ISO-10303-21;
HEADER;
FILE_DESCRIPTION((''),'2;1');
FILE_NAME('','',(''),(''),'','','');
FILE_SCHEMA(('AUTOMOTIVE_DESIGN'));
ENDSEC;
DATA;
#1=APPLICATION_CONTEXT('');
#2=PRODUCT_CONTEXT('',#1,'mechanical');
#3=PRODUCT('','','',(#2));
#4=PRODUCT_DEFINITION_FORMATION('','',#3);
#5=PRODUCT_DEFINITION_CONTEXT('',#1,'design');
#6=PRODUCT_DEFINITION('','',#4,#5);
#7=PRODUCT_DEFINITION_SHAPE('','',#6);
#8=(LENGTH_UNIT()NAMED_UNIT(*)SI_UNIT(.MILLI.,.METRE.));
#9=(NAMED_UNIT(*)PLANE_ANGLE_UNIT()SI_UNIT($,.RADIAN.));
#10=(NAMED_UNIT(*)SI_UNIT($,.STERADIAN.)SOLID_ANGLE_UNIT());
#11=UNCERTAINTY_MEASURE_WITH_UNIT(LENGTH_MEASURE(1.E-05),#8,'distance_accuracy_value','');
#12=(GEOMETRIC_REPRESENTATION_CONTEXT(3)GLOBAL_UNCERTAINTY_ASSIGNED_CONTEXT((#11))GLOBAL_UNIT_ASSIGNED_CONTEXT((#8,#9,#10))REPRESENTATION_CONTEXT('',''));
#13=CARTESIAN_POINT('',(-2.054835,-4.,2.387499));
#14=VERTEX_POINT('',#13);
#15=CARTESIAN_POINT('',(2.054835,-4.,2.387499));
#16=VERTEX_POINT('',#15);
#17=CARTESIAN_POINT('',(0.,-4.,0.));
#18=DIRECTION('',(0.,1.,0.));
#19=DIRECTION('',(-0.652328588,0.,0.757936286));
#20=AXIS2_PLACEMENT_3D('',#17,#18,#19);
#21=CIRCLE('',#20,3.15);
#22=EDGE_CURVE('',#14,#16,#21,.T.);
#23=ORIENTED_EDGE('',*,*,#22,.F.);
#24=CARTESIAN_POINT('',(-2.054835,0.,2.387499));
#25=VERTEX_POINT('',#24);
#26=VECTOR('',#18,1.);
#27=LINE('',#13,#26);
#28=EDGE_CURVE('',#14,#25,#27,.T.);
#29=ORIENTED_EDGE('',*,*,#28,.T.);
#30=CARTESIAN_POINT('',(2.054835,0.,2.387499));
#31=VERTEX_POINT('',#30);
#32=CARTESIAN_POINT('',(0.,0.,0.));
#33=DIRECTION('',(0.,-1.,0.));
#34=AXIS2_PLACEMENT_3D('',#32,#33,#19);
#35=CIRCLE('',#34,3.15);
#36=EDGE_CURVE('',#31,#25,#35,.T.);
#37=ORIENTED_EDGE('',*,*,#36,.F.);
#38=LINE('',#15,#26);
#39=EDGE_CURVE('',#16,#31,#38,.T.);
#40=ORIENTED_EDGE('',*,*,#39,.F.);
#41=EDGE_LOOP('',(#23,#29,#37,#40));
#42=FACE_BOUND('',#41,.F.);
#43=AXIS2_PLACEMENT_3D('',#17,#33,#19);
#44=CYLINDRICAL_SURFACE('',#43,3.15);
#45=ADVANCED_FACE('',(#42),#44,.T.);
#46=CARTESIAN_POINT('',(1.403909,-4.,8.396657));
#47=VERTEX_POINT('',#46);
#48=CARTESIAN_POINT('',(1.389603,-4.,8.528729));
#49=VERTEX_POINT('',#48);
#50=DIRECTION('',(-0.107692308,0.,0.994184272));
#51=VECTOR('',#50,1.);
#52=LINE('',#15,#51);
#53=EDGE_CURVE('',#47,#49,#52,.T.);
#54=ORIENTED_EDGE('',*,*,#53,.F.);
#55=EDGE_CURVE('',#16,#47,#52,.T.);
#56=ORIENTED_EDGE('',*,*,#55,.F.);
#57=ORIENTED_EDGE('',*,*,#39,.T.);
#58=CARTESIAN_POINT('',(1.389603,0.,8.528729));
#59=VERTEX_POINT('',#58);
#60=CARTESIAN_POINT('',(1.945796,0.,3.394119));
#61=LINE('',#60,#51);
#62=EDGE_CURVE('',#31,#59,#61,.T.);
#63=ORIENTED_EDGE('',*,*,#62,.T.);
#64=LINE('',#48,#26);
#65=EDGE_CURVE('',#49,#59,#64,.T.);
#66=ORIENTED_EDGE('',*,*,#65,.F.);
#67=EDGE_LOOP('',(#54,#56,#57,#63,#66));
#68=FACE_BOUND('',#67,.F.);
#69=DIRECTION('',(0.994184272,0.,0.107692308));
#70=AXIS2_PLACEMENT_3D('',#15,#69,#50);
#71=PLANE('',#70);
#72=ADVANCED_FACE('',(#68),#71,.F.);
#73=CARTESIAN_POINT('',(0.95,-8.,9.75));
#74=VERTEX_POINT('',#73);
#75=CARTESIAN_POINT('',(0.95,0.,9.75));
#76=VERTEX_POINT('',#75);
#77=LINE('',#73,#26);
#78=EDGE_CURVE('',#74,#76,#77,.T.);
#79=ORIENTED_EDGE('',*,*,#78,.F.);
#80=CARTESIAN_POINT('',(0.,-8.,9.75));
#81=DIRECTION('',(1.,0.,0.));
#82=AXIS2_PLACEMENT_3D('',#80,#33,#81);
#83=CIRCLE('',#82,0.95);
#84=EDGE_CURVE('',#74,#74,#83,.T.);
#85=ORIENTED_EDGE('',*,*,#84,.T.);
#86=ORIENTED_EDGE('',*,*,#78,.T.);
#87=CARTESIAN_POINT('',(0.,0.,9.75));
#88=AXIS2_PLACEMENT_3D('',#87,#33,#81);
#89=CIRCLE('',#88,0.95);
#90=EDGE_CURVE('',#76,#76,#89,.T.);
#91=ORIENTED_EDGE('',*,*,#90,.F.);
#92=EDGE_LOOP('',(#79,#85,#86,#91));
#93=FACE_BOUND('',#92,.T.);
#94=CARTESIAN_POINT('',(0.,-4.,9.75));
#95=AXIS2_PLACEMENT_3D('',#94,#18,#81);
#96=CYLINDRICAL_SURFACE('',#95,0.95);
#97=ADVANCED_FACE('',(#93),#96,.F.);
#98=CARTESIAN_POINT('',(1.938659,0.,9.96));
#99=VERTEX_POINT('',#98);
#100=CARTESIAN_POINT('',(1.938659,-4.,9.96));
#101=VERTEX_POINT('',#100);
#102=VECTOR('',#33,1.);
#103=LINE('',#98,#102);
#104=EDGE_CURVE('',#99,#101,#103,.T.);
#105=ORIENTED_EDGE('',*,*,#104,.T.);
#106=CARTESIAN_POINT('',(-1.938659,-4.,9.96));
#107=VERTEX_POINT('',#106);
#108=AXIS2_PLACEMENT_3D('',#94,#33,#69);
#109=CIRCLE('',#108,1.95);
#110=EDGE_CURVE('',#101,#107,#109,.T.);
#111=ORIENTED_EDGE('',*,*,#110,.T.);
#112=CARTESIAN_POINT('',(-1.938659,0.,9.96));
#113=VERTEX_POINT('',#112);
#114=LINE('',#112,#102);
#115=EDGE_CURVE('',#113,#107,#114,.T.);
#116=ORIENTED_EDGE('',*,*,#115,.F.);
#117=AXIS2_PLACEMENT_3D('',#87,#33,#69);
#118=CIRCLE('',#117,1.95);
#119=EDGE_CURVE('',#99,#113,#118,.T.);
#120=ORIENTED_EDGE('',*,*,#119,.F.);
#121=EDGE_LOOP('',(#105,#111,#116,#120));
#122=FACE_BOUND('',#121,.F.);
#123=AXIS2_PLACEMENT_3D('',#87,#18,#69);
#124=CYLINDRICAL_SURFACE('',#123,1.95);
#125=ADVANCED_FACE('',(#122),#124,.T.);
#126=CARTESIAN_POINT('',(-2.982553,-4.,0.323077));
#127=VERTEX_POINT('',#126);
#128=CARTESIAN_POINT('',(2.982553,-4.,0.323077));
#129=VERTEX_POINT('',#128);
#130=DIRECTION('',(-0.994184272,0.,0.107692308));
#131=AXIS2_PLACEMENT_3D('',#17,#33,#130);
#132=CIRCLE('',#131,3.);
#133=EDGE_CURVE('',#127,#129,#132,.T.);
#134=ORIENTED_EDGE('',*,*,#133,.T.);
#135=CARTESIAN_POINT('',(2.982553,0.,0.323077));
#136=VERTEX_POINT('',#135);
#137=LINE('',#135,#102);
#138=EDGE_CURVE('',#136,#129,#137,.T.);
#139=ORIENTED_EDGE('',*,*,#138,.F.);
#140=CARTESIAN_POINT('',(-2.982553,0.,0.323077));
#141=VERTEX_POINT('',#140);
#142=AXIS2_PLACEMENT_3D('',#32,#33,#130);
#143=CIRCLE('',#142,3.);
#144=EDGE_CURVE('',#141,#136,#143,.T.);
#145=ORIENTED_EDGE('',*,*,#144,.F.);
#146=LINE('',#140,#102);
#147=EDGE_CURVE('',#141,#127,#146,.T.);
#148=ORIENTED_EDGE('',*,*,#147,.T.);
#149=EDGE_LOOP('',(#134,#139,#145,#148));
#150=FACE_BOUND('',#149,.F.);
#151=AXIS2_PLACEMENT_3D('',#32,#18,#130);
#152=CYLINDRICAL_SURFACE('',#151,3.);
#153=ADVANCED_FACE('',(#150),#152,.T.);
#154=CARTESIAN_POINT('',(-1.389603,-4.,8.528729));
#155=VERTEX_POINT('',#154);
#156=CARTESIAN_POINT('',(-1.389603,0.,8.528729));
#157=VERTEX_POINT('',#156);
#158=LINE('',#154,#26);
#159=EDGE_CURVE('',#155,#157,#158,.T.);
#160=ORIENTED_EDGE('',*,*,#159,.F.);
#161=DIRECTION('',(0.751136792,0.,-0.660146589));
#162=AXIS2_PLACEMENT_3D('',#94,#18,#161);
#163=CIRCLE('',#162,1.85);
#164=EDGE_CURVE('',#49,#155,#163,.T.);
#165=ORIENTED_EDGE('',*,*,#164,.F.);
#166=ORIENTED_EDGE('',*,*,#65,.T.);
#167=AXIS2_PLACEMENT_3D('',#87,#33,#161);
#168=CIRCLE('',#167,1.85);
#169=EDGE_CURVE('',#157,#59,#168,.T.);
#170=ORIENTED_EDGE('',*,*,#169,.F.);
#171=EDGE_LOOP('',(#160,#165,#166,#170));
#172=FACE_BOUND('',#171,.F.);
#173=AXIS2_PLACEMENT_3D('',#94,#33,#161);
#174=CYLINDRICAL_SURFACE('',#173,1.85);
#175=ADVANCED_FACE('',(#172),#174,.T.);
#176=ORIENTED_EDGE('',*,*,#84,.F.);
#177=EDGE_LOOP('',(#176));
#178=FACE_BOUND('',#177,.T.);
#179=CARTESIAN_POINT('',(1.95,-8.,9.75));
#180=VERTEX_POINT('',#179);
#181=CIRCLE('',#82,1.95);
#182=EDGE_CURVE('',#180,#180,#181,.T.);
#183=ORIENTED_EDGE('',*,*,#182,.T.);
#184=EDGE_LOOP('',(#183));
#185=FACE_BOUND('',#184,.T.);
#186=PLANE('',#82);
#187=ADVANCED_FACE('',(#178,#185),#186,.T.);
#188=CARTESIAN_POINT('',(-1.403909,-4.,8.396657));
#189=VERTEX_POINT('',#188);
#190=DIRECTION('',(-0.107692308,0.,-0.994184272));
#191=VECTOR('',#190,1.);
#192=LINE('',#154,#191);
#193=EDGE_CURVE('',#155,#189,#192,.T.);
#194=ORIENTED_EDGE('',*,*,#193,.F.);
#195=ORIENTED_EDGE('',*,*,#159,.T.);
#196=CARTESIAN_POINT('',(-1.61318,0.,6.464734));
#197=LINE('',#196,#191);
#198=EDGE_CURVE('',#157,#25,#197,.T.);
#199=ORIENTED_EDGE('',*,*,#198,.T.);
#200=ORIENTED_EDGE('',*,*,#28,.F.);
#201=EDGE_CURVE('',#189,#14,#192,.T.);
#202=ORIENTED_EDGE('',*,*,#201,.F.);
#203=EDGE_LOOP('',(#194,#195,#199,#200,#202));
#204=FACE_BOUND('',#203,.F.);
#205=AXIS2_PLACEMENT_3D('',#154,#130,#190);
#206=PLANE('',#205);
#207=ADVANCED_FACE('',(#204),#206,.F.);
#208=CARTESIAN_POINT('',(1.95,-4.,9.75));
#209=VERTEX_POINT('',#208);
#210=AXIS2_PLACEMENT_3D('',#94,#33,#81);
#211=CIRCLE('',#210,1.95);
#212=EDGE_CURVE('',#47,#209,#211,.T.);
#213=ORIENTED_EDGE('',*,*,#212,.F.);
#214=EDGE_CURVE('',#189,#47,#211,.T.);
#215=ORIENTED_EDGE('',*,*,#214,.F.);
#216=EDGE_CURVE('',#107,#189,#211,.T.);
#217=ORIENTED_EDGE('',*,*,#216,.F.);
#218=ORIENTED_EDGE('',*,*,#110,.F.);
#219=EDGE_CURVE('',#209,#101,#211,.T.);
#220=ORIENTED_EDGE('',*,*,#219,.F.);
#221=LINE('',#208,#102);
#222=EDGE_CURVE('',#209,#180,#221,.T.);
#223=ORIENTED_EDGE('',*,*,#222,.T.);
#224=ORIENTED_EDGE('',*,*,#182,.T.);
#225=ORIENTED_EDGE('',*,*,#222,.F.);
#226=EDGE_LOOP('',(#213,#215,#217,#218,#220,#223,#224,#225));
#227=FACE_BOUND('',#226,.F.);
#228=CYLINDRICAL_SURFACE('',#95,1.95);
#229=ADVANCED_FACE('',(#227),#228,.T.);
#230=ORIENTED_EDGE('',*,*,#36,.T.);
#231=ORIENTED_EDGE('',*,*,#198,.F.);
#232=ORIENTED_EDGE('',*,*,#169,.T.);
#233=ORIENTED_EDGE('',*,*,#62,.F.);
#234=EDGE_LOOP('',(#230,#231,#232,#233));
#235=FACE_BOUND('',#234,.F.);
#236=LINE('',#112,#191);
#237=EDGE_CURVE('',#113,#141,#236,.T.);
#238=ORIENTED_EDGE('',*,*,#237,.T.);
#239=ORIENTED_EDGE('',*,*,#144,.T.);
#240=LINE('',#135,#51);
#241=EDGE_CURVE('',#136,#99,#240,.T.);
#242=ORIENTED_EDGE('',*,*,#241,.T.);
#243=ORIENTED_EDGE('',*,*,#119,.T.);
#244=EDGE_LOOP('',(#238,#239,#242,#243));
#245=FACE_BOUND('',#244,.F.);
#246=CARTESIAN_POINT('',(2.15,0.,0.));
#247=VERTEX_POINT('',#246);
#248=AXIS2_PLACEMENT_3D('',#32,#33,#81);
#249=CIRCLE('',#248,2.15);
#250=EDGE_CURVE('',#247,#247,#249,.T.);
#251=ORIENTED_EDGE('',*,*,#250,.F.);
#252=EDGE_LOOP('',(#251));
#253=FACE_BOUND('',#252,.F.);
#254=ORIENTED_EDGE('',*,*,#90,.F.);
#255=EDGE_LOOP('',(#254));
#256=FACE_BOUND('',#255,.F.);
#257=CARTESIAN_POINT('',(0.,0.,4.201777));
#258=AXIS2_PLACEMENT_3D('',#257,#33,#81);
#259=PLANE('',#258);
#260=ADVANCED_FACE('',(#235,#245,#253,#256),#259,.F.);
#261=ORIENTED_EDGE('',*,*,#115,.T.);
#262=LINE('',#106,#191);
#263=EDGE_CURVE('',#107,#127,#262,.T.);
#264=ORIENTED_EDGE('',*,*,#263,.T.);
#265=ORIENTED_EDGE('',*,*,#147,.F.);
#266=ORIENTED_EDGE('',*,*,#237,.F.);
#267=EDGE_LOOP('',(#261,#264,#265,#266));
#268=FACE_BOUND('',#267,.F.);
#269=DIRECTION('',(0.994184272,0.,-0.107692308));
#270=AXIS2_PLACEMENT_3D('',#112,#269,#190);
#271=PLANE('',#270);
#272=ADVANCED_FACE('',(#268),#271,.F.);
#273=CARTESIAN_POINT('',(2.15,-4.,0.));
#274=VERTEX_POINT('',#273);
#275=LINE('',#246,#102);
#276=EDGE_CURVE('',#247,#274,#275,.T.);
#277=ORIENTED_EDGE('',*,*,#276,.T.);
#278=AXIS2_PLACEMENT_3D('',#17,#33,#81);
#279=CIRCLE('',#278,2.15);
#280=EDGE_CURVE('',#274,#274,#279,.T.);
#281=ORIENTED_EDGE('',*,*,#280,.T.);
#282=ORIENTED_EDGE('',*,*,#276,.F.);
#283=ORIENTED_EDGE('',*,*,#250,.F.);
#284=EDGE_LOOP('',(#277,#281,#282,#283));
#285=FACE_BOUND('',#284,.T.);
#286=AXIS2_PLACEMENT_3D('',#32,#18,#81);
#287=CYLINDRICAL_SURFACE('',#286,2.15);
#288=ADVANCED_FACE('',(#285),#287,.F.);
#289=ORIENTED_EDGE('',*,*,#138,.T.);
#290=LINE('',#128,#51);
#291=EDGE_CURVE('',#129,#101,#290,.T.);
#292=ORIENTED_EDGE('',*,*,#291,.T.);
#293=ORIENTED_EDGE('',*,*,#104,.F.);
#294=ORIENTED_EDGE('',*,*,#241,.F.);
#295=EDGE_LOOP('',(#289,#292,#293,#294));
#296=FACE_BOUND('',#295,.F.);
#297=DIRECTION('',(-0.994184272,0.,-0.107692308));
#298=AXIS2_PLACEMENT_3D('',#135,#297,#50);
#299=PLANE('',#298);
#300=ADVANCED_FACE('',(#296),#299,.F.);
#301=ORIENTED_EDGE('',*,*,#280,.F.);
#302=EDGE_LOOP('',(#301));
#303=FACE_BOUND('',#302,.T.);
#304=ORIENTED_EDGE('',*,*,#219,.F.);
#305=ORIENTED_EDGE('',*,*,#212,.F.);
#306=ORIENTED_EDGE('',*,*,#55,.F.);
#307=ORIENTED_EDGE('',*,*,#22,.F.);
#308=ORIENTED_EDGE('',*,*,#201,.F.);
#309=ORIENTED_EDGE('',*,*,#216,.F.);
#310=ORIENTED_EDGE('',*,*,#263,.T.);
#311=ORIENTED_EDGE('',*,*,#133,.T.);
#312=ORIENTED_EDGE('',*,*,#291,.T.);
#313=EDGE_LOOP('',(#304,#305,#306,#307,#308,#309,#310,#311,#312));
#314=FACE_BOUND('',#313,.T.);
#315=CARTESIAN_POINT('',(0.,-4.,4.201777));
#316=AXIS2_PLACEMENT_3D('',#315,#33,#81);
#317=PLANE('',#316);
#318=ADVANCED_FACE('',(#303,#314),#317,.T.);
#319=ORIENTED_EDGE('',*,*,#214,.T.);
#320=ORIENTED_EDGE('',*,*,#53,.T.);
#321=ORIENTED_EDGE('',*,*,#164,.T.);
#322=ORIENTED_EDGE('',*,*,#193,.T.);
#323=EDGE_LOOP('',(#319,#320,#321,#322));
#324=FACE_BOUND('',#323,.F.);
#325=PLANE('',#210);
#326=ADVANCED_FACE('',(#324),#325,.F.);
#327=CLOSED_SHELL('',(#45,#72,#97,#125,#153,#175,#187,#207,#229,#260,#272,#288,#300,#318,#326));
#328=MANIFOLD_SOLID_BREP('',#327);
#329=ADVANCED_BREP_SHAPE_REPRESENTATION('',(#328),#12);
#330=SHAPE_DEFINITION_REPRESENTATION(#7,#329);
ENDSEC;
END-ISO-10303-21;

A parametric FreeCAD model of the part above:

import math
import FreeCAD as App
import Part
import Sketcher
from FreeCAD import Vector
Q = App.Units.Quantity

doc = App.newDocument("Part")
body = doc.addObject("PartDesign::Body", "Body")

sketch1 = body.newObject("Sketcher::SketchObject", "Sketch")
sketch1.AttachmentSupport = (doc.getObject("XZ_Plane"), [""])
sketch1.MapMode = "FlatFace"
sketch1.addGeometry([
    Part.LineSegment(Vector(-1.938659, 9.96, 0), Vector(-2.982553, 0.323077, 0)),
    Part.ArcOfCircle(Part.Circle(Vector(0, 0, 0), Vector(0, 0, 1), 3), math.radians(173.817696), math.radians(366.182304)),
    Part.LineSegment(Vector(2.982553, 0.323077, 0), Vector(1.938659, 9.96, 0)),
    Part.ArcOfCircle(Part.Circle(Vector(0, 9.75, 0), Vector(0, 0, 1), 1.95), math.radians(6.182304), math.radians(173.817696)),
    Part.Circle(Vector(0, 0, 0), Vector(0, 0, 1), 2.15),
    Part.Circle(Vector(0, 9.75, 0), Vector(0, 0, 1), 0.95),
], False)
sketch1.addConstraint([
    Sketcher.Constraint("Tangent", 0, 2, 1, 1),
    Sketcher.Constraint("Tangent", 1, 2, 2, 1),
    Sketcher.Constraint("Tangent", 2, 2, 3, 1),
    Sketcher.Constraint("Tangent", 3, 2, 0, 1),
    Sketcher.Constraint("Coincident", 1, 3, -1, 1),
    Sketcher.Constraint("Coincident", 4, 3, -1, 1),
    Sketcher.Constraint("Coincident", 5, 3, 3, 3),
    Sketcher.Constraint("PointOnObject", 3, 3, -2),
    Sketcher.Constraint("Radius", 1, Q("3 mm")),
    Sketcher.Constraint("Diameter", 4, Q("4.3 mm")),
    Sketcher.Constraint("Diameter", 5, Q("1.9 mm")),
    Sketcher.Constraint("Radius", 3, Q("1.95 mm")),
    Sketcher.Constraint("DistanceY", -1, 1, 3, 3, Q("9.75 mm")),
])
pad1 = body.newObject("PartDesign::Pad", "Pad")
pad1.Profile = sketch1
pad1.Length = 4

sketch2 = body.newObject("Sketcher::SketchObject", "Sketch001")
sketch2.AttachmentSupport = (doc.getObject("XZ_Plane"), [""])
sketch2.MapMode = "FlatFace"
sketch2.AttachmentOffset = App.Placement(Vector(0, 0, 4), App.Rotation())
sketch2.addGeometry([
    Part.ArcOfCircle(Part.Circle(Vector(0, 9.75, 0), Vector(0, 0, 1), 1.85), math.radians(-138.688947), math.radians(-41.311053)),
    Part.LineSegment(Vector(-1.389603, 8.528729, 0), Vector(-2.054835, 2.387499, 0)),
    Part.ArcOfCircle(Part.Circle(Vector(0, 0, 0), Vector(0, 0, 1), 3.15), math.radians(49.282602), math.radians(130.717398)),
    Part.LineSegment(Vector(2.054835, 2.387499, 0), Vector(1.389603, 8.528729, 0)),
], False)
sketch2.addConstraint([
    Sketcher.Constraint("Coincident", 0, 1, 1, 1),
    Sketcher.Constraint("Coincident", 1, 2, 2, 2),
    Sketcher.Constraint("Coincident", 2, 1, 3, 1),
    Sketcher.Constraint("Coincident", 3, 2, 0, 2),
    Sketcher.Constraint("Coincident", 2, 3, -1, 1),
    Sketcher.Constraint("Symmetric", 0, 1, 3, 2, -2),
    Sketcher.Constraint("Horizontal", 1, 2, 2, 1),
    Sketcher.Constraint("Radius", 0, Q("1.85 mm")),
    Sketcher.Constraint("Radius", 2, Q("3.15 mm")),
    Sketcher.Constraint("DistanceY", -1, 1, 0, 3, Q("9.75 mm")),
    Sketcher.Constraint("DistanceY", -1, 1, 1, 2, Q("2.387499 mm")),
    Sketcher.Constraint("DistanceY", -1, 1, 0, 1, Q("8.528729 mm")),
])
pocket1 = body.newObject("PartDesign::Pocket", "Pocket")
pocket1.Profile = sketch2
pocket1.Length = 25

sketch3 = body.newObject("Sketcher::SketchObject", "Sketch002")
sketch3.AttachmentSupport = (doc.getObject("XZ_Plane"), [""])
sketch3.MapMode = "FlatFace"
sketch3.AttachmentOffset = App.Placement(Vector(0, 0, 4), App.Rotation())
sketch3.addGeometry([
    Part.Circle(Vector(0, 9.75, 0), Vector(0, 0, 1), 1.95),
    Part.Circle(Vector(0, 9.75, 0), Vector(0, 0, 1), 0.95),
], False)
sketch3.addConstraint([
    Sketcher.Constraint("Coincident", 1, 3, 0, 3),
    Sketcher.Constraint("PointOnObject", 0, 3, -2),
    Sketcher.Constraint("Diameter", 0, Q("3.9 mm")),
    Sketcher.Constraint("Diameter", 1, Q("1.9 mm")),
    Sketcher.Constraint("DistanceY", -1, 1, 0, 3, Q("9.75 mm")),
])
pad2 = body.newObject("PartDesign::Pad", "Pad001")
pad2.Profile = sketch3
pad2.Length = 4

doc.recompute()
